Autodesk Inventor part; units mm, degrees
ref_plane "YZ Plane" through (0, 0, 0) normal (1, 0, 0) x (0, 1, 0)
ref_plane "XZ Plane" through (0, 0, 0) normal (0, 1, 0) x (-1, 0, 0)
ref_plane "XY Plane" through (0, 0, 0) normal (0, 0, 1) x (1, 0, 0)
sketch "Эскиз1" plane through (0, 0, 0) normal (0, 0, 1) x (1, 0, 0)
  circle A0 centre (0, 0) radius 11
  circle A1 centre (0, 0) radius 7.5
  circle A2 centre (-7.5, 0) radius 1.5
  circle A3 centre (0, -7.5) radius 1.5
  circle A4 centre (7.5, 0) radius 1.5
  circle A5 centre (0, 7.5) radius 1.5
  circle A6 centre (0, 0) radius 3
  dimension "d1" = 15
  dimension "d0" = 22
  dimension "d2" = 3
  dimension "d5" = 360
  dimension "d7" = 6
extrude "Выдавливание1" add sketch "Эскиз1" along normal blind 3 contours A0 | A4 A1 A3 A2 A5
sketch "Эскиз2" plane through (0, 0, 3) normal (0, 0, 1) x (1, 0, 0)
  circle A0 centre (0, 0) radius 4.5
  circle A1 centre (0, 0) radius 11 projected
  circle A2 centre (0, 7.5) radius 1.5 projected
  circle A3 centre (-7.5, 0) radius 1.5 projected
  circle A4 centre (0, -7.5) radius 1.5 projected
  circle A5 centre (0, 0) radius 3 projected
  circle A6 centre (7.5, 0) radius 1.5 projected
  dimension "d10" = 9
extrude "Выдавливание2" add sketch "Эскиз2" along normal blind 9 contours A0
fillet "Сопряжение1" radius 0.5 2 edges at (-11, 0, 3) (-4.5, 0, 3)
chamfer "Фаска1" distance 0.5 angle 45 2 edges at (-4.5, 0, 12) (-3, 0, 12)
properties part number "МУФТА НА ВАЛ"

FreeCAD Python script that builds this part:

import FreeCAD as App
import Part
import Sketcher
Q = App.Units.Quantity


def edges_at(feature, points):
    """Names of the edges that pass closest to the given points."""
    edges = feature.Shape.Edges
    near = lambda p: min(range(len(edges)), key=lambda i: edges[i].distToShape(Part.Vertex(*p))[0])
    return sorted({f"Edge{near(p) + 1}" for p in points})

doc = App.newDocument("Part")
params = doc.addObject("Spreadsheet::Sheet", "Params")
for row, (alias, value) in enumerate([
    ("sketch1_diameter", "22 mm"),
    ("sketch1_diameter2", "3 mm"),
    ("sketch1_diameter3", "6 mm"),
    ("pad1_length", "3 mm"),
    ("sketch2_diameter", "9 mm"),
    ("sketch2_diameter2", "6 mm"),
    ("pad2_length", "9 mm"),
    ("fillet_radius", "0.5 mm"),
    ("chamfer_size", "0.5 mm"),
], start=1):
    params.set(f"A{row}", alias)
    params.set(f"B{row}", "=" + value)
    params.setAlias(f"B{row}", alias)

body = doc.addObject("PartDesign::Body", "Body")

sketch1 = doc.addObject("Sketcher::SketchObject", "Sketch")
body.addObject(sketch1)
sketch1.AttachmentSupport = (doc.XY_Plane, [""])
sketch1.MapMode = "FlatFace"
sketch1.addGeometry(Part.Circle(App.Vector(0, 0, 0), App.Vector(0, 0, 1), 11), False)
sketch1.addGeometry(Part.Circle(App.Vector(0, 7.5, 0), App.Vector(0, 0, 1), 1.5), False)
sketch1.addGeometry(Part.Circle(App.Vector(-7.5, 0, 0), App.Vector(0, 0, 1), 1.5), False)
sketch1.addGeometry(Part.Circle(App.Vector(0, -7.5, 0), App.Vector(0, 0, 1), 1.5), False)
sketch1.addGeometry(Part.Circle(App.Vector(7.5, 0, 0), App.Vector(0, 0, 1), 1.5), False)
sketch1.addGeometry(Part.Circle(App.Vector(0, 0, 0), App.Vector(0, 0, 1), 3), False)
sketch1.addConstraint(Sketcher.Constraint("Coincident", 0, 3, -1, 1))
sketch1.addConstraint(Sketcher.Constraint("Coincident", 5, 3, -1, 1))
sketch1.addConstraint(Sketcher.Constraint("Equal", 1, 2))
sketch1.addConstraint(Sketcher.Constraint("Equal", 2, 3))
sketch1.addConstraint(Sketcher.Constraint("Equal", 3, 4))
sketch1.addConstraint(Sketcher.Constraint("Symmetric", 1, 3, 3, 3, -1, 1))
sketch1.addConstraint(Sketcher.Constraint("Symmetric", 2, 3, 4, 3, -1, 1))
sketch1.addConstraint(Sketcher.Constraint("PointOnObject", 1, 3, -2))
sketch1.addConstraint(Sketcher.Constraint("PointOnObject", 2, 3, -1))
sketch1.addConstraint(Sketcher.Constraint("Diameter", 0, Q("22 mm")))
sketch1.addConstraint(Sketcher.Constraint("Diameter", 1, Q("3 mm")))
sketch1.addConstraint(Sketcher.Constraint("Diameter", 5, Q("6 mm")))
sketch1.addConstraint(Sketcher.Constraint("DistanceY", 3, 3, 1, 3, Q("15 mm")))
sketch1.addConstraint(Sketcher.Constraint("DistanceX", 2, 3, 4, 3, Q("15 mm")))
sketch1.setExpression("Constraints[9]", "Params.sketch1_diameter")
sketch1.setExpression("Constraints[10]", "Params.sketch1_diameter2")
sketch1.setExpression("Constraints[11]", "Params.sketch1_diameter3")
pad1 = doc.addObject("PartDesign::Pad", "Pad")
body.addObject(pad1)
pad1.Profile = sketch1
pad1.setExpression("Length", "Params.pad1_length")

sketch2 = doc.addObject("Sketcher::SketchObject", "Sketch001")
body.addObject(sketch2)
sketch2.AttachmentSupport = (doc.XY_Plane, [""])
sketch2.MapMode = "FlatFace"
sketch2.AttachmentOffset = App.Placement(App.Vector(0, 0, 3), App.Rotation())
sketch2.addGeometry(Part.Circle(App.Vector(0, 0, 0), App.Vector(0, 0, 1), 4.5), False)
sketch2.addGeometry(Part.Circle(App.Vector(0, 0, 0), App.Vector(0, 0, 1), 3), False)
sketch2.addConstraint(Sketcher.Constraint("Coincident", 0, 3, -1, 1))
sketch2.addConstraint(Sketcher.Constraint("Coincident", 1, 3, -1, 1))
sketch2.addConstraint(Sketcher.Constraint("Diameter", 0, Q("9 mm")))
sketch2.addConstraint(Sketcher.Constraint("Diameter", 1, Q("6 mm")))
sketch2.setExpression("Constraints[2]", "Params.sketch2_diameter")
sketch2.setExpression("Constraints[3]", "Params.sketch2_diameter2")
pad2 = doc.addObject("PartDesign::Pad", "Pad001")
body.addObject(pad2)
pad2.Profile = sketch2
pad2.setExpression("Length", "Params.pad2_length")
doc.recompute()

fillet = doc.addObject("PartDesign::Fillet", "Fillet")
body.addObject(fillet)
fillet.Base = (pad2, edges_at(pad2, [(-11, 0, 3), (-4.5, 0, 3)]))
fillet.setExpression("Radius", "Params.fillet_radius")
doc.recompute()

chamfer = doc.addObject("PartDesign::Chamfer", "Chamfer")
body.addObject(chamfer)
chamfer.Base = (fillet, edges_at(fillet, [(-4.5, 0, 12), (-3, 0, 12)]))
chamfer.setExpression("Size", "Params.chamfer_size")

doc.recompute()
